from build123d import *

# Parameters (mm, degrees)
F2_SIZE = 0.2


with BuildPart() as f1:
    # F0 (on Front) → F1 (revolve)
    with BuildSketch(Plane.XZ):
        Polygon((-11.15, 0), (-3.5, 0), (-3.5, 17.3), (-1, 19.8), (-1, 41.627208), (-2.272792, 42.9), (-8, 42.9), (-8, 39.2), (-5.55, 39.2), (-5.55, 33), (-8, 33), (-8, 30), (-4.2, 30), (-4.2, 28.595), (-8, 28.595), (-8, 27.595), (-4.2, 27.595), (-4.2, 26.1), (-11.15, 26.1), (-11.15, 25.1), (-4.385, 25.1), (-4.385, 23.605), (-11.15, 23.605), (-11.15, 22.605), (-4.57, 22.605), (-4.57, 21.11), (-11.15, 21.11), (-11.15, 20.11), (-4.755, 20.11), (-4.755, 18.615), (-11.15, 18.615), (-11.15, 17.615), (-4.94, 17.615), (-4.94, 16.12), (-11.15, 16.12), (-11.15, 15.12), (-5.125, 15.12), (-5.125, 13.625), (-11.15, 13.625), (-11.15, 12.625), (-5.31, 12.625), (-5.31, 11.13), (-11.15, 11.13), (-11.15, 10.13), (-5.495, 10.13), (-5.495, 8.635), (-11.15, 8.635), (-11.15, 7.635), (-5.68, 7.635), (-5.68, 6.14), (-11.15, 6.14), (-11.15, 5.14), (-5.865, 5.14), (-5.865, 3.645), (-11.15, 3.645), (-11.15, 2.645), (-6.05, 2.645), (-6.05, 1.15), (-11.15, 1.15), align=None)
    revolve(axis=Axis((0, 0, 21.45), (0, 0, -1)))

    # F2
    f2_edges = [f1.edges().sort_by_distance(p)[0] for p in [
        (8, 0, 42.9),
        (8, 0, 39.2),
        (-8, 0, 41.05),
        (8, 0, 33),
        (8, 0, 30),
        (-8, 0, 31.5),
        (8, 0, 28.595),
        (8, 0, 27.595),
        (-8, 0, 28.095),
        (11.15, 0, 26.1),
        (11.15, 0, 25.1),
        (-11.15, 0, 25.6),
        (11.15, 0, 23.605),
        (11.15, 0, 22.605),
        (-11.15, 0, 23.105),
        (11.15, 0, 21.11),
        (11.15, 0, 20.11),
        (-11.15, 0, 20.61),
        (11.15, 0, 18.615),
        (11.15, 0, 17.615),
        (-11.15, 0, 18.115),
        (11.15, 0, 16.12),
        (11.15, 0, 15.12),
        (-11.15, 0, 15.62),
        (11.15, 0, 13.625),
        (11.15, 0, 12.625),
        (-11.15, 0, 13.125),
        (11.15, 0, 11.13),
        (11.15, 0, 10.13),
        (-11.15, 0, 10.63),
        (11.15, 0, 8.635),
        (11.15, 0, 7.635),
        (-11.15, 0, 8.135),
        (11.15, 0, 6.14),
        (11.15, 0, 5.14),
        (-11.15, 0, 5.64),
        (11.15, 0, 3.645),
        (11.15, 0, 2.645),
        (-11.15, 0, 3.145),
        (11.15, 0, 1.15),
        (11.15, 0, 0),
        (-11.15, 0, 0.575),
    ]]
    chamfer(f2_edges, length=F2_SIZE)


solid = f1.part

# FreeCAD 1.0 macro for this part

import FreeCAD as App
import Part
import Sketcher
Q = App.Units.Quantity


def edges_at(feature, points):
    """Names of the edges that pass closest to the given points."""
    edges = feature.Shape.Edges
    near = lambda p: min(range(len(edges)), key=lambda i: edges[i].distToShape(Part.Vertex(*p))[0])
    return sorted({f"Edge{near(p) + 1}" for p in points})


def add_polygon(sketch, points):
    """Adds a closed chain of lines whose ends are joined by coincident constraints."""
    first, n = sketch.GeometryCount, len(points)
    for a, b in zip(points, points[1:] + points[:1]):
        sketch.addGeometry(Part.LineSegment(App.Vector(*a, 0), App.Vector(*b, 0)), False)
    for i in range(n):
        sketch.addConstraint(Sketcher.Constraint("Coincident", first + i, 2, first + (i + 1) % n, 1))

doc = App.newDocument("Part")
body = doc.addObject("PartDesign::Body", "Body")

# Sketch on XZ plane
sketch1 = body.newObject("Sketcher::SketchObject", "Sketch")
sketch1.AttachmentSupport = (doc.getObject("XZ_Plane"), [""])
sketch1.MapMode = "FlatFace"
add_polygon(sketch1, [(-11.2, 0), (-3.5, 0), (-3.5, 17.3), (-1, 19.8), (-1, 41.6), (-2.3, 42.9), (-8, 42.9), (-8, 39.2), (-5.5, 39.2), (-5.5, 33), (-8, 33), (-8, 30), (-4.2, 30), (-4.2, 28.6), (-8, 28.6), (-8, 27.6), (-4.2, 27.6), (-4.2, 26.1), (-11.2, 26.1), (-11.2, 25.1), (-4.4, 25.1), (-4.4, 23.6), (-11.2, 23.6), (-11.2, 22.6), (-4.6, 22.6), (-4.6, 21.1), (-11.2, 21.1), (-11.2, 20.1), (-4.8, 20.1), (-4.8, 18.6), (-11.2, 18.6), (-11.2, 17.6), (-4.9, 17.6), (-4.9, 16.1), (-11.2, 16.1), (-11.2, 15.1), (-5.1, 15.1), (-5.1, 13.6), (-11.2, 13.6), (-11.2, 12.6), (-5.3, 12.6), (-5.3, 11.1), (-11.2, 11.1), (-11.2, 10.1), (-5.5, 10.1), (-5.5, 8.6), (-11.2, 8.6), (-11.2, 7.6), (-5.7, 7.6), (-5.7, 6.1), (-11.2, 6.1), (-11.2, 5.1), (-5.9, 5.1), (-5.9, 3.6), (-11.2, 3.6), (-11.2, 2.6), (-6, 2.6), (-6, 1.1), (-11.2, 1.1)])  # lines 0-58
sketch1.addConstraint([
    Sketcher.Constraint("Horizontal", 0),
    Sketcher.Constraint("Vertical", 1),
    Sketcher.Constraint("Vertical", 3),
    Sketcher.Constraint("Horizontal", 5),
    Sketcher.Constraint("Vertical", 6),
    Sketcher.Constraint("Horizontal", 7),
    Sketcher.Constraint("Vertical", 8),
    Sketcher.Constraint("Horizontal", 9),
    Sketcher.Constraint("Vertical", 10),
    Sketcher.Constraint("Horizontal", 11),
    Sketcher.Constraint("Vertical", 12),
    Sketcher.Constraint("Horizontal", 13),
    Sketcher.Constraint("Vertical", 14),
    Sketcher.Constraint("Horizontal", 15),
    Sketcher.Constraint("Vertical", 16),
    Sketcher.Constraint("Horizontal", 17),
    Sketcher.Constraint("Vertical", 18),
    Sketcher.Constraint("Horizontal", 19),
    Sketcher.Constraint("Vertical", 20),
    Sketcher.Constraint("Horizontal", 21),
    Sketcher.Constraint("Vertical", 22),
    Sketcher.Constraint("Horizontal", 23),
    Sketcher.Constraint("Vertical", 24),
    Sketcher.Constraint("Horizontal", 25),
    Sketcher.Constraint("Vertical", 26),
    Sketcher.Constraint("Horizontal", 27),
    Sketcher.Constraint("Vertical", 28),
    Sketcher.Constraint("Horizontal", 29),
    Sketcher.Constraint("Vertical", 30),
    Sketcher.Constraint("Horizontal", 31),
    Sketcher.Constraint("Vertical", 32),
    Sketcher.Constraint("Horizontal", 33),
    Sketcher.Constraint("Vertical", 34),
    Sketcher.Constraint("Horizontal", 35),
    Sketcher.Constraint("Vertical", 36),
    Sketcher.Constraint("Horizontal", 37),
    Sketcher.Constraint("Vertical", 38),
    Sketcher.Constraint("Horizontal", 39),
    Sketcher.Constraint("Vertical", 40),
    Sketcher.Constraint("Horizontal", 41),
    Sketcher.Constraint("Vertical", 42),
    Sketcher.Constraint("Horizontal", 43),
    Sketcher.Constraint("Vertical", 44),
    Sketcher.Constraint("Horizontal", 45),
    Sketcher.Constraint("Vertical", 46),
    Sketcher.Constraint("Horizontal", 47),
    Sketcher.Constraint("Vertical", 48),
    Sketcher.Constraint("Horizontal", 49),
    Sketcher.Constraint("Vertical", 50),
    Sketcher.Constraint("Horizontal", 51),
    Sketcher.Constraint("Vertical", 52),
    Sketcher.Constraint("Horizontal", 53),
    Sketcher.Constraint("Vertical", 54),
    Sketcher.Constraint("Horizontal", 55),
    Sketcher.Constraint("Vertical", 56),
    Sketcher.Constraint("Horizontal", 57),
    Sketcher.Constraint("Vertical", 58),
    Sketcher.Constraint("PointOnObject", 0, 2, -1),
    Sketcher.Constraint("Perpendicular", 2, 4),
    Sketcher.Constraint("Vertical", 6, 2, 9, 2),
    Sketcher.Constraint("Vertical", 10, 2, 13, 2),
    Sketcher.Constraint("Vertical", 12, 2, 15, 2),
    Sketcher.Constraint("Vertical", 18, 2, 21, 2),
    Sketcher.Constraint("Vertical", 22, 2, 25, 2),
    Sketcher.Constraint("Vertical", 26, 2, 29, 2),
    Sketcher.Constraint("Vertical", 30, 2, 33, 2),
    Sketcher.Constraint("Vertical", 34, 2, 37, 2),
    Sketcher.Constraint("Vertical", 38, 2, 41, 2),
    Sketcher.Constraint("Vertical", 42, 2, 45, 2),
    Sketcher.Constraint("Vertical", 46, 2, 49, 2),
    Sketcher.Constraint("Vertical", 50, 2, 53, 2),
    Sketcher.Constraint("Vertical", 54, 2, 57, 2),
    Sketcher.Constraint("Equal", 14, 18),
    Sketcher.Constraint("Equal", 16, 20),
    Sketcher.Constraint("Equal", 18, 22),
    Sketcher.Constraint("Equal", 20, 24),
    Sketcher.Constraint("Equal", 22, 26),
    Sketcher.Constraint("Equal", 24, 28),
    Sketcher.Constraint("Equal", 26, 30),
    Sketcher.Constraint("Equal", 28, 32),
    Sketcher.Constraint("Equal", 30, 34),
    Sketcher.Constraint("Equal", 32, 36),
    Sketcher.Constraint("Equal", 34, 38),
    Sketcher.Constraint("Equal", 36, 40),
    Sketcher.Constraint("Equal", 38, 42),
    Sketcher.Constraint("Equal", 40, 44),
    Sketcher.Constraint("Equal", 42, 46),
    Sketcher.Constraint("Equal", 44, 48),
    Sketcher.Constraint("Equal", 46, 50),
    Sketcher.Constraint("Equal", 48, 52),
    Sketcher.Constraint("Equal", 50, 54),
    Sketcher.Constraint("Equal", 52, 56),
    Sketcher.Constraint("DistanceY", 10, 2, 10, 1, 3.0),
    Sketcher.Constraint("DistanceY", 14, 2, 14, 1, 1.0),
    Sketcher.Constraint("Angle", 2, Q("45 deg")),
    Sketcher.Constraint("DistanceX", 11, 1, 11, 2, 3.8),
    Sketcher.Constraint("DistanceX", 55, 1, 55, 2, 5.1),
    Sketcher.Constraint("DistanceY", 1, 1, 1, 2, 17.3),
    Sketcher.Constraint("DistanceY", 6, 2, 6, 1, 3.7),
    Sketcher.Constraint("DistanceY", 8, 2, 8, 1, 6.2),
    Sketcher.Constraint("DistanceX", 2, 2, -1, 1, 1.0),
    Sketcher.Constraint("DistanceX", 5, 2, -1, 1, 8.0),
    Sketcher.Constraint("DistanceY", -1, 1, 8, 2, 33.0),
    Sketcher.Constraint("Distance", 4, 1.8),
    Sketcher.Constraint("DistanceX", 0, 1, 0, 2, 7.65),
    Sketcher.Constraint("DistanceX", 7, 1, 7, 2, 2.45),
    Sketcher.Constraint("DistanceX", 17, 2, 17, 1, 6.95),
    Sketcher.Constraint("DistanceX", 23, 1, 23, 2, 6.58),
    Sketcher.Constraint("DistanceX", 31, 1, 31, 2, 6.21),
    Sketcher.Constraint("DistanceX", 39, 1, 39, 2, 5.84),
    Sketcher.Constraint("DistanceX", 47, 1, 47, 2, 5.47),
    Sketcher.Constraint("DistanceY", 58, 2, 58, 1, 1.15),
    Sketcher.Constraint("DistanceY", -1, 1, 16, 2, 26.1),
    Sketcher.Constraint("DistanceX", 19, 1, 19, 2, 6.765),
    Sketcher.Constraint("DistanceX", 27, 1, 27, 2, 6.395),
    Sketcher.Constraint("DistanceX", 35, 1, 35, 2, 6.025),
    Sketcher.Constraint("DistanceX", 43, 1, 43, 2, 5.655),
    Sketcher.Constraint("DistanceX", 51, 1, 51, 2, 5.285),
])
revolution = body.newObject("PartDesign::Revolution", "Revolution")
revolution.Profile = sketch1
revolution.ReferenceAxis = (sketch1, ["V_Axis"])
revolution.Angle = 360
doc.recompute()

chamfer = body.newObject("PartDesign::Chamfer", "Chamfer")
chamfer.Base = (revolution, edges_at(revolution, [
    (8, 0, 42.9),
    (8, 0, 39.2),
    (-8, 0, 41.05),
    (8, 0, 33),
    (8, 0, 30),
    (-8, 0, 31.5),
    (8, 0, 28.595),
    (8, 0, 27.595),
    (-8, 0, 28.095),
    (11.15, 0, 26.1),
    (11.15, 0, 25.1),
    (-11.15, 0, 25.6),
    (11.15, 0, 23.605),
    (11.15, 0, 22.605),
    (-11.15, 0, 23.105),
    (11.15, 0, 21.11),
    (11.15, 0, 20.11),
    (-11.15, 0, 20.61),
    (11.15, 0, 18.615),
    (11.15, 0, 17.615),
    (-11.15, 0, 18.115),
    (11.15, 0, 16.12),
    (11.15, 0, 15.12),
    (-11.15, 0, 15.62),
    (11.15, 0, 13.625),
    (11.15, 0, 12.625),
    (-11.15, 0, 13.125),
    (11.15, 0, 11.13),
    (11.15, 0, 10.13),
    (-11.15, 0, 10.63),
    (11.15, 0, 8.635),
    (11.15, 0, 7.635),
    (-11.15, 0, 8.135),
    (11.15, 0, 6.14),
    (11.15, 0, 5.14),
    (-11.15, 0, 5.64),
    (11.15, 0, 3.645),
    (11.15, 0, 2.645),
    (-11.15, 0, 3.145),
    (11.15, 0, 1.15),
    (11.15, 0, 0),
    (-11.15, 0, 0.575),
]))
chamfer.Size = 0.2

doc.recompute()
